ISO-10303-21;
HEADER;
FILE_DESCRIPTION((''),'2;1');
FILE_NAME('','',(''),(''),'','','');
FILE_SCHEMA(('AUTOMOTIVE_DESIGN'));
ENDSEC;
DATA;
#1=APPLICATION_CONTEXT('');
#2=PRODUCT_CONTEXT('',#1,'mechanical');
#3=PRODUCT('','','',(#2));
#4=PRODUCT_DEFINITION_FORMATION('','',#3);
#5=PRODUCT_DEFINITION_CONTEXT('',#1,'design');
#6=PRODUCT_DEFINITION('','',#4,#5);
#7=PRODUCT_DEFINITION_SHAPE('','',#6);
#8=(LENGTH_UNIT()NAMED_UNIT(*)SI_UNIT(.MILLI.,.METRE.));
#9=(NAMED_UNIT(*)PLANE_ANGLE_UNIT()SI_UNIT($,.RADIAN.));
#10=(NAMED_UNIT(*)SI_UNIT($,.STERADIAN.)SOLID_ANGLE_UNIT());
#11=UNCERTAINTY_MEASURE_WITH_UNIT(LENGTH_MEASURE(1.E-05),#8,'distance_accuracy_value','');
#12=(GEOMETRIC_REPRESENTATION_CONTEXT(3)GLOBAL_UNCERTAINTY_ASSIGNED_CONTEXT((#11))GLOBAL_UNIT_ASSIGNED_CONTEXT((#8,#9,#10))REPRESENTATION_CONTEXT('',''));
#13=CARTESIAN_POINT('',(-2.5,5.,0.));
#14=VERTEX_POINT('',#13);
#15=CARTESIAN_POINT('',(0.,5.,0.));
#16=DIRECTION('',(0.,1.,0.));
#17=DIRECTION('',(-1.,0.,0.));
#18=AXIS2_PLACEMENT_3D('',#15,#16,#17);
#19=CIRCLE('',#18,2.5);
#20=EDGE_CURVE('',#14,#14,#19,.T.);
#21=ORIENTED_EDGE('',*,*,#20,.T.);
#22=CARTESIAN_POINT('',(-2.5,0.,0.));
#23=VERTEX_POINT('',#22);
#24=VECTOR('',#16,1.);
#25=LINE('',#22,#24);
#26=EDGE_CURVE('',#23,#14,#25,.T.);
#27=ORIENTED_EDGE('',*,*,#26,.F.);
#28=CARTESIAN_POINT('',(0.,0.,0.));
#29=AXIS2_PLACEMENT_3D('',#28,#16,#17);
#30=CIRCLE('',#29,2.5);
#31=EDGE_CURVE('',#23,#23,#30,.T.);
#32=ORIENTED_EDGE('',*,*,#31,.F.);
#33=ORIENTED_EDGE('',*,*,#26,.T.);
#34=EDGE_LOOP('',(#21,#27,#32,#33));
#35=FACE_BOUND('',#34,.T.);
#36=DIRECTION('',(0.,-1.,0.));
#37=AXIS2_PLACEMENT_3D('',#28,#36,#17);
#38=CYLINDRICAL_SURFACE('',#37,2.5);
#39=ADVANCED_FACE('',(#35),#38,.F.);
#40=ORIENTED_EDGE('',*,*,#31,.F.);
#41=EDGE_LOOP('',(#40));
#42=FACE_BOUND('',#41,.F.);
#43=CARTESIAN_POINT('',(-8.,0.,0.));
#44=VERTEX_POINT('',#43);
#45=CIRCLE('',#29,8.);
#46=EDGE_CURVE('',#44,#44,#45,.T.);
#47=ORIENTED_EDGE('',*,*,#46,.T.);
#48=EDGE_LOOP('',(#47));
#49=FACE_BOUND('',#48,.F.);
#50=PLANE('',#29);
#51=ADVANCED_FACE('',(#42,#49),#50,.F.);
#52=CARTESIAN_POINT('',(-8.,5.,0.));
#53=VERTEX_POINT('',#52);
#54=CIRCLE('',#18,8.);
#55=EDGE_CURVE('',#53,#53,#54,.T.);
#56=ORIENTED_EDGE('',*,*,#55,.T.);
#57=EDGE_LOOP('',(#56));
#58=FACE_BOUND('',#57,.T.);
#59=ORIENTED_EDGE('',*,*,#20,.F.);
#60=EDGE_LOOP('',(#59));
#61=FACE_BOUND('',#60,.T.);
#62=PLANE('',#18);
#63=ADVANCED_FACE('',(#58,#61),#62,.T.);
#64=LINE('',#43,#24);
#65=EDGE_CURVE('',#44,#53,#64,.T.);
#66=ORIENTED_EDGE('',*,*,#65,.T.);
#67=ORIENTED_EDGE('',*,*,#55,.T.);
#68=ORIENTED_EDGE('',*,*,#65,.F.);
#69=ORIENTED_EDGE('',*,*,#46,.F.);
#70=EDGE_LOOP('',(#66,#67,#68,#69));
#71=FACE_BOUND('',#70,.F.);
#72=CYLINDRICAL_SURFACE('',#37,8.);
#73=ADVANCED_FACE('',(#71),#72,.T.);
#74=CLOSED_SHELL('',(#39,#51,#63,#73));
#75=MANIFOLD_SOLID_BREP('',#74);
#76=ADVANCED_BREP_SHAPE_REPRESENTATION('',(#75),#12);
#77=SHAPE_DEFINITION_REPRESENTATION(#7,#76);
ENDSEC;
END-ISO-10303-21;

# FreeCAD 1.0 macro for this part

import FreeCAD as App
import Part
import Sketcher
from FreeCAD import Vector

doc = App.newDocument("Part")
body = doc.addObject("PartDesign::Body", "Body")

sketch1 = body.newObject("Sketcher::SketchObject", "Sketch")
sketch1.AttachmentSupport = (doc.getObject("XZ_Plane"), [""])
sketch1.MapMode = "FlatFace"
sketch1.addGeometry(Part.Circle(Vector(0, 0, 0), Vector(0, 0, 1), 8), False)
sketch1.addGeometry(Part.Circle(Vector(0, 0, 0), Vector(0, 0, 1), 2.5), False)
sketch1.addConstraint(Sketcher.Constraint("Coincident", 0, 3, -1, 1))
sketch1.addConstraint(Sketcher.Constraint("Coincident", 1, 3, -1, 1))
sketch1.addConstraint(Sketcher.Constraint("Diameter", 0, 16.0))
sketch1.addConstraint(Sketcher.Constraint("Diameter", 1, 5.0))
pad1 = body.newObject("PartDesign::Pad", "Pad")
pad1.Profile = sketch1
pad1.Length = 5
pad1.Reversed = True

doc.recompute()
